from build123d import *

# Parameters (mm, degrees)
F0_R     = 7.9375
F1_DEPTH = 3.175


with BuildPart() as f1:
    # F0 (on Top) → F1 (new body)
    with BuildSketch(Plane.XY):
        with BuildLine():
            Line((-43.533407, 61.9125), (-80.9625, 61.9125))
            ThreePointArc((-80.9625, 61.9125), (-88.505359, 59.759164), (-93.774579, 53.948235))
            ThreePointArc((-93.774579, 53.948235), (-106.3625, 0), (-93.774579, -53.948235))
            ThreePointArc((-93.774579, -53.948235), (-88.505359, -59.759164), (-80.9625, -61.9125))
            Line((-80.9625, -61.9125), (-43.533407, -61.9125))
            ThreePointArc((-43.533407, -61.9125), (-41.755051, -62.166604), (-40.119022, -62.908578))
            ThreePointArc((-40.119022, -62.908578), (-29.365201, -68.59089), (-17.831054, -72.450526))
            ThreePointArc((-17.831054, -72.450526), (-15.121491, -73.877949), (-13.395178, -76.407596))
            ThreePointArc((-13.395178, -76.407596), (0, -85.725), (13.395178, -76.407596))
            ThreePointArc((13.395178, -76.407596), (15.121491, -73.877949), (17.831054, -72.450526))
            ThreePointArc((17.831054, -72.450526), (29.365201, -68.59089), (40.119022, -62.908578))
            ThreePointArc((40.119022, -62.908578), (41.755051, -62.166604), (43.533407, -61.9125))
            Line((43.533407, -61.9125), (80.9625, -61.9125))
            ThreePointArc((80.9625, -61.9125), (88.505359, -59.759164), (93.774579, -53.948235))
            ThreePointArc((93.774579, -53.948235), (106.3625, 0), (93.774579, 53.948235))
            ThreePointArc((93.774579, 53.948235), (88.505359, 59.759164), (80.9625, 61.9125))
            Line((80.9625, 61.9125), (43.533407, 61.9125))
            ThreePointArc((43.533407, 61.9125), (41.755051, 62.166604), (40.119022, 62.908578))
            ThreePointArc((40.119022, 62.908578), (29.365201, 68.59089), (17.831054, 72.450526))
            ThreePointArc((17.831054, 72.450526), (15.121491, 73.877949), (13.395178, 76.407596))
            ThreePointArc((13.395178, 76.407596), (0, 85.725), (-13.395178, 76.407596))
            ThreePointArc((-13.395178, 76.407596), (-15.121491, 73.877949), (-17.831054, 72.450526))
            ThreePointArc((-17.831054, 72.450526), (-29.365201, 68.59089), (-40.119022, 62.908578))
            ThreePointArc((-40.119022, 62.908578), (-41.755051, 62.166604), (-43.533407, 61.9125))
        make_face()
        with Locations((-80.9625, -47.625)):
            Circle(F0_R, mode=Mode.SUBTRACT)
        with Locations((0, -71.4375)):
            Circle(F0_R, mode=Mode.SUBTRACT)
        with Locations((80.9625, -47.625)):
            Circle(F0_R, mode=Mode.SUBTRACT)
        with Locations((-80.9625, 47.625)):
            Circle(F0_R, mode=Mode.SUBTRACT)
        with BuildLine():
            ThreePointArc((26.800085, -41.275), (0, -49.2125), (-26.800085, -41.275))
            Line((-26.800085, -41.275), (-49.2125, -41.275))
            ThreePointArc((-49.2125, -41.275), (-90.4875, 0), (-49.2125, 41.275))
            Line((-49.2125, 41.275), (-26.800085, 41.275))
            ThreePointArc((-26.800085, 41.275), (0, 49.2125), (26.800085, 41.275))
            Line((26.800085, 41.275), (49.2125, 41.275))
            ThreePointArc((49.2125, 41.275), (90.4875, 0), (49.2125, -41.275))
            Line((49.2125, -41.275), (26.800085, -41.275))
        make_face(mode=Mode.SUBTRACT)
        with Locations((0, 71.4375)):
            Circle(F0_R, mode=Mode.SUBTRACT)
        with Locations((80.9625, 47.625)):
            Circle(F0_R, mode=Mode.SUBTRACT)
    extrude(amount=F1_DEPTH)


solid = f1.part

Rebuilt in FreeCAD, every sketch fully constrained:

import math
import FreeCAD as App
import Part
import Sketcher

V = App.Vector
Q = App.Units.Quantity

doc = App.newDocument("Part")
params = doc.addObject("Spreadsheet::Sheet", "Params")
for row, (alias, value) in enumerate([
    ("sketch1_radius", "0.25 in"),
    ("sketch1_diameter", "0.625 in"),
    ("sketch1_radius2", "0.5625 in"),
    ("sketch1_radius3", "1.9375001 in"),
    ("sketch1_radius4", "1.625 in"),
    ("pad1_length", "0.125 in"),
], start=1):
    params.set(f"A{row}", alias)
    params.set(f"B{row}", "=" + value)
    params.setAlias(f"B{row}", alias)

body = doc.addObject("PartDesign::Body", "Body")

# Sketch on XY plane
sketch1 = doc.addObject("Sketcher::SketchObject", "Sketch")
body.addObject(sketch1)
sketch1.AttachmentSupport = (doc.XY_Plane, [""])
sketch1.MapMode = "FlatFace"
sketch1.addGeometry([
    Part.LineSegment(V(-43.533407, 61.9125, 0), V(-80.9625, 61.9125, 0)),  # 0
    Part.ArcOfCircle(Part.Circle(V(-80.9625, 47.624999, 0), V(0, 0, 1), 14.287501), math.radians(90.000001), math.radians(153.731952)),  # 1
    Part.ArcOfCircle(Part.Circle(V(15.534826, 0, 0), V(0, 0, 1), 121.897326), math.radians(153.731956), math.radians(206.268044)),  # 2
    Part.ArcOfCircle(Part.Circle(V(-80.9625, -47.624999, 0), V(0, 0, 1), 14.287501), math.radians(-153.731952), math.radians(-90.000001)),  # 3
    Part.LineSegment(V(-80.9625, -61.9125, 0), V(-43.533407, -61.9125, 0)),  # 4
    Part.ArcOfCircle(Part.Circle(V(-43.533409, -68.262509, 0), V(0, 0, 1), 6.350009), math.radians(57.472935), math.radians(89.999983)),  # 5
    Part.ArcOfCircle(Part.Circle(V(-0.000011, -0.00003, 0), V(0, 0, 1), 74.612469), math.radians(-122.527102), math.radians(-103.82647)),  # 6
    Part.ArcOfCircle(Part.Circle(V(-19.348589, -78.616527, 0), V(0, 0, 1), 6.349999), math.radians(20.356678), math.radians(76.173535)),  # 7
    Part.ArcOfCircle(Part.Circle(V(0, -71.4375, 0), V(0, 0, 1), 14.2875), math.radians(-159.643325), math.radians(-20.356675)),  # 8
    Part.ArcOfCircle(Part.Circle(V(19.348589, -78.616527, 0), V(0, 0, 1), 6.349999), math.radians(103.826465), math.radians(159.643322)),  # 9
    Part.ArcOfCircle(Part.Circle(V(0.000011, -0.00003, 0), V(0, 0, 1), 74.612469), math.radians(-76.17353), math.radians(-57.472898)),  # 10
    Part.ArcOfCircle(Part.Circle(V(43.533409, -68.262509, 0), V(0, 0, 1), 6.350009), math.radians(90.000017), math.radians(122.527065)),  # 11
    Part.LineSegment(V(43.533407, -61.9125, 0), V(80.9625, -61.9125, 0)),  # 12
    Part.ArcOfCircle(Part.Circle(V(80.9625, -47.624999, 0), V(0, 0, 1), 14.287501), math.radians(-89.999999), math.radians(-26.268048)),  # 13
    Part.ArcOfCircle(Part.Circle(V(-15.534826, 0, 0), V(0, 0, 1), 121.897326), math.radians(-26.268044), math.radians(26.268044)),  # 14
    Part.ArcOfCircle(Part.Circle(V(80.9625, 47.624999, 0), V(0, 0, 1), 14.287501), math.radians(26.268048), math.radians(89.999999)),  # 15
    Part.LineSegment(V(80.9625, 61.9125, 0), V(43.533407, 61.9125, 0)),  # 16
    Part.ArcOfCircle(Part.Circle(V(43.533409, 68.262509, 0), V(0, 0, 1), 6.350009), math.radians(-122.527065), math.radians(-90.000017)),  # 17
    Part.ArcOfCircle(Part.Circle(V(0.000011, 0.00003, 0), V(0, 0, 1), 74.612469), math.radians(57.472898), math.radians(76.17353)),  # 18
    Part.ArcOfCircle(Part.Circle(V(19.348589, 78.616527, 0), V(0, 0, 1), 6.349999), math.radians(-159.643322), math.radians(-103.826465)),  # 19
    Part.ArcOfCircle(Part.Circle(V(0, 71.4375, 0), V(0, 0, 1), 14.2875), math.radians(20.356675), math.radians(159.643325)),  # 20
    Part.ArcOfCircle(Part.Circle(V(-19.348589, 78.616527, 0), V(0, 0, 1), 6.349999), math.radians(-76.173535), math.radians(-20.356678)),  # 21
    Part.ArcOfCircle(Part.Circle(V(-0.000011, 0.00003, 0), V(0, 0, 1), 74.612469), math.radians(103.82647), math.radians(122.527102)),  # 22
    Part.ArcOfCircle(Part.Circle(V(-43.533409, 68.262509, 0), V(0, 0, 1), 6.350009), math.radians(-89.999983), math.radians(-57.472935)),  # 23
    Part.Circle(V(-80.9625, -47.625, 0), V(0, 0, 1), 7.9375),  # 24
    Part.Circle(V(0, -71.4375, 0), V(0, 0, 1), 7.9375),  # 25
    Part.Circle(V(80.9625, -47.625, 0), V(0, 0, 1), 7.9375),  # 26
    Part.Circle(V(-80.9625, 47.625, 0), V(0, 0, 1), 7.9375),  # 27
    Part.LineSegment(V(49.2125, -41.275, 0), V(26.800085, -41.275, 0)),  # 28
    Part.ArcOfCircle(Part.Circle(V(0, 0.000002, 0), V(0, 0, 1), 49.212502), math.radians(-122.995885), math.radians(-57.004115)),  # 29
    Part.LineSegment(V(-26.800085, -41.275, 0), V(-49.2125, -41.275, 0)),  # 30
    Part.ArcOfCircle(Part.Circle(V(-49.2125, 0, 0), V(0, 0, 1), 41.275), math.radians(90), math.radians(270)),  # 31
    Part.LineSegment(V(-49.2125, 41.275, 0), V(-26.800085, 41.275, 0)),  # 32
    Part.ArcOfCircle(Part.Circle(V(0, -0.000002, 0), V(0, 0, 1), 49.212502), math.radians(57.004115), math.radians(122.995885)),  # 33
    Part.LineSegment(V(26.800085, 41.275, 0), V(49.2125, 41.275, 0)),  # 34
    Part.ArcOfCircle(Part.Circle(V(49.2125, 0, 0), V(0, 0, 1), 41.275), math.radians(-90), math.radians(90)),  # 35
    Part.Circle(V(0, 71.4375, 0), V(0, 0, 1), 7.9375),  # 36
    Part.Circle(V(80.9625, 47.625, 0), V(0, 0, 1), 7.9375),  # 37
], False)
sketch1.addConstraint([
    Sketcher.Constraint("Tangent", 0, 2, 1, 1),
    Sketcher.Constraint("Tangent", 1, 2, 2, 1),
    Sketcher.Constraint("Tangent", 2, 2, 3, 1),
    Sketcher.Constraint("Tangent", 3, 2, 4, 1),
    Sketcher.Constraint("Tangent", 4, 2, 5, 2),
    Sketcher.Constraint("Tangent", 5, 1, 6, 1),
    Sketcher.Constraint("Tangent", 6, 2, 7, 2),
    Sketcher.Constraint("Tangent", 7, 1, 8, 1),
    Sketcher.Constraint("Tangent", 8, 2, 9, 2),
    Sketcher.Constraint("Tangent", 9, 1, 10, 1),
    Sketcher.Constraint("Tangent", 10, 2, 11, 2),
    Sketcher.Constraint("Tangent", 11, 1, 12, 1),
    Sketcher.Constraint("Tangent", 12, 2, 13, 1),
    Sketcher.Constraint("Tangent", 13, 2, 14, 1),
    Sketcher.Constraint("Tangent", 14, 2, 15, 1),
    Sketcher.Constraint("Tangent", 15, 2, 16, 1),
    Sketcher.Constraint("Tangent", 16, 2, 17, 2),
    Sketcher.Constraint("Tangent", 17, 1, 18, 1),
    Sketcher.Constraint("Tangent", 18, 2, 19, 2),
    Sketcher.Constraint("Tangent", 19, 1, 20, 1),
    Sketcher.Constraint("Tangent", 20, 2, 21, 2),
    Sketcher.Constraint("Tangent", 21, 1, 22, 1),
    Sketcher.Constraint("Tangent", 22, 2, 23, 2),
    Sketcher.Constraint("Tangent", 23, 1, 0, 1),
    Sketcher.Constraint("Coincident", 28, 2, 29, 2),
    Sketcher.Constraint("Coincident", 29, 1, 30, 1),
    Sketcher.Constraint("Tangent", 30, 2, 31, 2),
    Sketcher.Constraint("Tangent", 31, 1, 32, 1),
    Sketcher.Constraint("Coincident", 32, 2, 33, 2),
    Sketcher.Constraint("Coincident", 33, 1, 34, 1),
    Sketcher.Constraint("Tangent", 34, 2, 35, 2),
    Sketcher.Constraint("Tangent", 35, 1, 28, 1),
    Sketcher.Constraint("Horizontal", 0),
    Sketcher.Constraint("Horizontal", 4),
    Sketcher.Constraint("Horizontal", 12),
    Sketcher.Constraint("Horizontal", 16),
    Sketcher.Constraint("Horizontal", 28),
    Sketcher.Constraint("Horizontal", 30),
    Sketcher.Constraint("Horizontal", 32),
    Sketcher.Constraint("Horizontal", 34),
    Sketcher.Constraint("Coincident", 29, 3, -1, 1),
    Sketcher.Constraint("Coincident", 33, 3, -1, 1),
    Sketcher.Constraint("Coincident", 24, 3, 3, 3),
    Sketcher.Constraint("Coincident", 25, 3, 8, 3),
    Sketcher.Constraint("Coincident", 26, 3, 13, 3),
    Sketcher.Constraint("Coincident", 27, 3, 1, 3),
    Sketcher.Constraint("Coincident", 36, 3, 20, 3),
    Sketcher.Constraint("Coincident", 37, 3, 15, 3),
    Sketcher.Constraint("Equal", 1, 3),
    Sketcher.Constraint("Equal", 3, 8),
    Sketcher.Constraint("Equal", 7, 9),
    Sketcher.Constraint("Equal", 6, 10),
    Sketcher.Constraint("Equal", 5, 11),
    Sketcher.Constraint("Equal", 8, 13),
    Sketcher.Constraint("Equal", 2, 14),
    Sketcher.Constraint("Equal", 13, 15),
    Sketcher.Constraint("Equal", 11, 17),
    Sketcher.Constraint("Equal", 10, 18),
    Sketcher.Constraint("Equal", 9, 19),
    Sketcher.Constraint("Equal", 15, 20),
    Sketcher.Constraint("Equal", 19, 21),
    Sketcher.Constraint("Equal", 18, 22),
    Sketcher.Constraint("Equal", 17, 23),
    Sketcher.Constraint("Equal", 24, 25),
    Sketcher.Constraint("Equal", 25, 26),
    Sketcher.Constraint("Equal", 26, 27),
    Sketcher.Constraint("Equal", 29, 33),
    Sketcher.Constraint("Equal", 31, 35),
    Sketcher.Constraint("Equal", 27, 36),
    Sketcher.Constraint("Equal", 36, 37),
    Sketcher.Constraint("Symmetric", 1, 3, 13, 3, -1, 1),
    Sketcher.Constraint("Symmetric", 3, 3, 15, 3, -1, 1),
    Sketcher.Constraint("Symmetric", 6, 3, 18, 3, -1, 1),
    Sketcher.Constraint("Symmetric", 8, 3, 20, 3, -1, 1),
    Sketcher.Constraint("Symmetric", 10, 3, 22, 3, -1, 1),
    Sketcher.Constraint("Symmetric", 31, 3, 35, 3, -1, 1),
    Sketcher.Constraint("Symmetric", 7, 3, 9, 3, -2),
    Sketcher.Constraint("Symmetric", 5, 3, 11, 3, -2),
    Sketcher.Constraint("PointOnObject", 2, 3, -1),
    Sketcher.Constraint("PointOnObject", 31, 3, -1),
    Sketcher.Constraint("Radius", 7, Q("0.25 in")),
    Sketcher.Constraint("Diameter", 24, Q("0.625 in")),
    Sketcher.Constraint("Radius", 1, Q("0.5625 in")),
    Sketcher.Constraint("Radius", 29, Q("1.9375001 in")),
    Sketcher.Constraint("Radius", 31, Q("1.625 in")),
    Sketcher.Constraint("DistanceX", 1, 3, -1, 1, Q("3.1875 in")),
    Sketcher.Constraint("DistanceY", -1, 1, 1, 3, Q("1.875 in")),
    Sketcher.Constraint("DistanceY", 8, 3, -1, 1, Q("2.8125 in")),
    Sketcher.Constraint("DistanceX", 31, 3, -1, 1, Q("1.9375 in")),
    Sketcher.Constraint("Radius", 5, 6.350009),
    Sketcher.Constraint("Radius", 6, 74.612469),
    Sketcher.Constraint("Radius", 2, 121.897326),
    Sketcher.Constraint("DistanceX", 0, 2, 0, 1, 37.429093),
    Sketcher.Constraint("DistanceX", 7, 3, -1, 1, 19.348589),
])
sketch1.setExpression("Constraints[80]", "Params.sketch1_radius")
sketch1.setExpression("Constraints[81]", "Params.sketch1_diameter")
sketch1.setExpression("Constraints[82]", "Params.sketch1_radius2")
sketch1.setExpression("Constraints[83]", "Params.sketch1_radius3")
sketch1.setExpression("Constraints[84]", "Params.sketch1_radius4")
pad1 = doc.addObject("PartDesign::Pad", "Pad")
body.addObject(pad1)
pad1.Profile = sketch1
pad1.setExpression("Length", "Params.pad1_length")

doc.recompute()
